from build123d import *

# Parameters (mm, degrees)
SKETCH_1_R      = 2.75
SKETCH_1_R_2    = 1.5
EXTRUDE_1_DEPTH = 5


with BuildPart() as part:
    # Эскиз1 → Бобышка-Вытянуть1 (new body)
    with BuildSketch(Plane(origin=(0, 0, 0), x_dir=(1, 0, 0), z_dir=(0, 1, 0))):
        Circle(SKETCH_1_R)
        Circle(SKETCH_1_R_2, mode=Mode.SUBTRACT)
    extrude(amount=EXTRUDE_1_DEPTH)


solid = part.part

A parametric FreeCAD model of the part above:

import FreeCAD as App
import Part
import Sketcher

V = App.Vector

doc = App.newDocument("Part")
body = doc.addObject("PartDesign::Body", "Body")

# Sketch on XZ plane
sketch1 = doc.addObject("Sketcher::SketchObject", "Sketch")
body.addObject(sketch1)
sketch1.AttachmentSupport = (doc.XZ_Plane, [""])
sketch1.MapMode = "FlatFace"
sketch1.addGeometry([
    Part.Circle(V(0, 0, 0), V(0, 0, 1), 2.8),
    Part.Circle(V(0, 0, 0), V(0, 0, 1), 1.5),
], False)
sketch1.addConstraint([
    Sketcher.Constraint("Coincident", 0, 3, -1, 1),
    Sketcher.Constraint("Coincident", 1, 3, -1, 1),
    Sketcher.Constraint("Diameter", 1, 3.0),
    Sketcher.Constraint("Diameter", 0, 5.5),
])
pad1 = doc.addObject("PartDesign::Pad", "Pad")
body.addObject(pad1)
pad1.Profile = sketch1
pad1.Length = 5
pad1.Reversed = True

doc.recompute()
